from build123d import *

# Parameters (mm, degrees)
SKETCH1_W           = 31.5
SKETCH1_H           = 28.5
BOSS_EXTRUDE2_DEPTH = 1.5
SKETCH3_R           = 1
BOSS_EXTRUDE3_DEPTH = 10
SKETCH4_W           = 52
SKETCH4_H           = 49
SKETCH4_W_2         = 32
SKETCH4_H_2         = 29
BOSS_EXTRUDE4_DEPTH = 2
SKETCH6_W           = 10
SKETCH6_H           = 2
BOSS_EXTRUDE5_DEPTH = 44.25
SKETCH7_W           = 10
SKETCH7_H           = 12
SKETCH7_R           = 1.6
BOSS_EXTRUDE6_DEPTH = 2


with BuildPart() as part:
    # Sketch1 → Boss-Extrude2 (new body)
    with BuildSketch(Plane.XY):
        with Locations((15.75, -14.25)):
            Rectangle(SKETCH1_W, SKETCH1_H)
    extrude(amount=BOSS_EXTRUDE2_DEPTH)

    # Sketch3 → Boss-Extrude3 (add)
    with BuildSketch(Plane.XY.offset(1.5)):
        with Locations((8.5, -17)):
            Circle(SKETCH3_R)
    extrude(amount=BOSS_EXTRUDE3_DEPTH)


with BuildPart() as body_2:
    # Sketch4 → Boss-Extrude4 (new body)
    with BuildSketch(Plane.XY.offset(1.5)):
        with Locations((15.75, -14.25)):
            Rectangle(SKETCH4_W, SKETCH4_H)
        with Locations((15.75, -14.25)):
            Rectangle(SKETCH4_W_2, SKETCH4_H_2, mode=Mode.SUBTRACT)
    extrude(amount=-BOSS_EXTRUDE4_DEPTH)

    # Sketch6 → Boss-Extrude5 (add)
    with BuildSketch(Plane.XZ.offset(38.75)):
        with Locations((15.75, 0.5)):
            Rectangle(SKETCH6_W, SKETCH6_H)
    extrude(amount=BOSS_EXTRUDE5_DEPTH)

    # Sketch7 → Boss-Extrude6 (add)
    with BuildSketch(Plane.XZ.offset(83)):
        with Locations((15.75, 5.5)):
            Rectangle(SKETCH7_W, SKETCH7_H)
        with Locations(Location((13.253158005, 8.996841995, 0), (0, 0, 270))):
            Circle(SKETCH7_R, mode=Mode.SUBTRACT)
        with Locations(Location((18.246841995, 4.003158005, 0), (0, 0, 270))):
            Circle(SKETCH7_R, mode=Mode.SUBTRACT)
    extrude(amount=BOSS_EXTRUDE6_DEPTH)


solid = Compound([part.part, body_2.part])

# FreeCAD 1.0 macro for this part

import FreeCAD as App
import Part
import Sketcher

V = App.Vector
Q = App.Units.Quantity

doc = App.newDocument("Part")
body = doc.addObject("PartDesign::Body", "Body")

sketch1 = body.newObject("Sketcher::SketchObject", "Sketch")
sketch1.AttachmentSupport = (doc.getObject("XY_Plane"), [""])
sketch1.MapMode = "FlatFace"
sketch1.addGeometry(Part.LineSegment(V(0, 0, 0), V(0, -28, 0)), False)
sketch1.addGeometry(Part.LineSegment(V(0, -28, 0), V(32, -28, 0)), False)
sketch1.addGeometry(Part.LineSegment(V(32, -28, 0), V(32, 0, 0)), False)
sketch1.addGeometry(Part.LineSegment(V(32, 0, 0), V(0, 0, 0)), False)
sketch1.addConstraint(Sketcher.Constraint("Coincident", 0, 2, 1, 1))
sketch1.addConstraint(Sketcher.Constraint("Coincident", 1, 2, 2, 1))
sketch1.addConstraint(Sketcher.Constraint("Coincident", 2, 2, 3, 1))
sketch1.addConstraint(Sketcher.Constraint("Coincident", 3, 2, 0, 1))
sketch1.addConstraint(Sketcher.Constraint("Vertical", 0))
sketch1.addConstraint(Sketcher.Constraint("Horizontal", 1))
sketch1.addConstraint(Sketcher.Constraint("Vertical", 2))
sketch1.addConstraint(Sketcher.Constraint("Horizontal", 3))
sketch1.addConstraint(Sketcher.Constraint("Coincident", 3, 2, -1, 1))
sketch1.addConstraint(Sketcher.Constraint("DistanceX", 1, 1, 1, 2, Q("31.5 mm")))
sketch1.addConstraint(Sketcher.Constraint("DistanceY", 0, 2, 0, 1, Q("28.5 mm")))
pad1 = body.newObject("PartDesign::Pad", "Pad")
pad1.Profile = sketch1
pad1.Length = 1.5

sketch2 = body.newObject("Sketcher::SketchObject", "Sketch001")
sketch2.AttachmentSupport = (doc.getObject("XY_Plane"), [""])
sketch2.MapMode = "FlatFace"
sketch2.AttachmentOffset = App.Placement(V(0, 0, 1.5), App.Rotation())
sketch2.addGeometry(Part.Circle(V(8.5, -17, 0), V(0, 0, 1), 1), False)
sketch2.addConstraint(Sketcher.Constraint("Diameter", 0, Q("2 mm")))
sketch2.addConstraint(Sketcher.Constraint("DistanceY", 0, 3, -1, 1, Q("17 mm")))
sketch2.addConstraint(Sketcher.Constraint("DistanceX", -1, 1, 0, 3, Q("8.5 mm")))
pad2 = body.newObject("PartDesign::Pad", "Pad001")
pad2.Profile = sketch2
pad2.Length = 10
body2 = doc.addObject("PartDesign::Body", "Body001")

sketch3 = body2.newObject("Sketcher::SketchObject", "Sketch002")
sketch3.AttachmentSupport = (doc.getObject("XY_Plane001"), [""])
sketch3.MapMode = "FlatFace"
sketch3.AttachmentOffset = App.Placement(V(0, 0, 1.5), App.Rotation())
sketch3.addGeometry(Part.LineSegment(V(-10, 10, 0), V(-10, -39, 0)), False)
sketch3.addGeometry(Part.LineSegment(V(-10, -39, 0), V(42, -39, 0)), False)
sketch3.addGeometry(Part.LineSegment(V(42, -39, 0), V(42, 10, 0)), False)
sketch3.addGeometry(Part.LineSegment(V(42, 10, 0), V(-10, 10, 0)), False)
sketch3.addGeometry(Part.LineSegment(V(32, -29, 0), V(0, -29, 0)), False)
sketch3.addGeometry(Part.LineSegment(V(0, -29, 0), V(0, 0, 0)), False)
sketch3.addGeometry(Part.LineSegment(V(0, 0, 0), V(32, 0, 0)), False)
sketch3.addGeometry(Part.LineSegment(V(32, 0, 0), V(32, -29, 0)), False)
sketch3.addConstraint(Sketcher.Constraint("Coincident", 0, 2, 1, 1))
sketch3.addConstraint(Sketcher.Constraint("Coincident", 1, 2, 2, 1))
sketch3.addConstraint(Sketcher.Constraint("Coincident", 2, 2, 3, 1))
sketch3.addConstraint(Sketcher.Constraint("Coincident", 3, 2, 0, 1))
sketch3.addConstraint(Sketcher.Constraint("Coincident", 4, 2, 5, 1))
sketch3.addConstraint(Sketcher.Constraint("Coincident", 5, 2, 6, 1))
sketch3.addConstraint(Sketcher.Constraint("Coincident", 6, 2, 7, 1))
sketch3.addConstraint(Sketcher.Constraint("Coincident", 7, 2, 4, 1))
sketch3.addConstraint(Sketcher.Constraint("Vertical", 0))
sketch3.addConstraint(Sketcher.Constraint("Horizontal", 1))
sketch3.addConstraint(Sketcher.Constraint("Vertical", 2))
sketch3.addConstraint(Sketcher.Constraint("Horizontal", 3))
sketch3.addConstraint(Sketcher.Constraint("Horizontal", 4))
sketch3.addConstraint(Sketcher.Constraint("Vertical", 5))
sketch3.addConstraint(Sketcher.Constraint("Horizontal", 6))
sketch3.addConstraint(Sketcher.Constraint("Vertical", 7))
sketch3.addConstraint(Sketcher.Constraint("DistanceX", 1, 1, 1, 2, Q("52 mm")))
sketch3.addConstraint(Sketcher.Constraint("DistanceX", 4, 2, 4, 1, Q("32 mm")))
sketch3.addConstraint(Sketcher.Constraint("DistanceY", 0, 2, 0, 1, Q("49 mm")))
sketch3.addConstraint(Sketcher.Constraint("DistanceY", 5, 1, 5, 2, Q("29 mm")))
sketch3.addConstraint(Sketcher.Constraint("DistanceX", 0, 2, 4, 2, Q("10 mm")))
sketch3.addConstraint(Sketcher.Constraint("DistanceY", 0, 2, 4, 2, Q("10 mm")))
sketch3.addConstraint(Sketcher.Constraint("DistanceX", 0, 2, -1, 1, Q("10.25 mm")))
sketch3.addConstraint(Sketcher.Constraint("DistanceY", 0, 2, -1, 1, Q("38.75 mm")))
pad3 = body2.newObject("PartDesign::Pad", "Pad002")
pad3.Profile = sketch3
pad3.Length = 2
pad3.Reversed = True

sketch4 = body2.newObject("Sketcher::SketchObject", "Sketch003")
sketch4.AttachmentSupport = (doc.getObject("XZ_Plane001"), [""])
sketch4.MapMode = "FlatFace"
sketch4.AttachmentOffset = App.Placement(V(0, 0, 38.75), App.Rotation())
sketch4.addGeometry(Part.LineSegment(V(10.8, 1.5, 0), V(10.8, -0.5, 0)), False)
sketch4.addGeometry(Part.LineSegment(V(10.8, -0.5, 0), V(20.8, -0.5, 0)), False)
sketch4.addGeometry(Part.LineSegment(V(20.8, -0.5, 0), V(20.8, 1.5, 0)), False)
sketch4.addGeometry(Part.LineSegment(V(20.8, 1.5, 0), V(10.8, 1.5, 0)), False)
sketch4.addConstraint(Sketcher.Constraint("Coincident", 0, 2, 1, 1))
sketch4.addConstraint(Sketcher.Constraint("Coincident", 1, 2, 2, 1))
sketch4.addConstraint(Sketcher.Constraint("Coincident", 2, 2, 3, 1))
sketch4.addConstraint(Sketcher.Constraint("Coincident", 3, 2, 0, 1))
sketch4.addConstraint(Sketcher.Constraint("Vertical", 0))
sketch4.addConstraint(Sketcher.Constraint("Horizontal", 1))
sketch4.addConstraint(Sketcher.Constraint("Vertical", 2))
sketch4.addConstraint(Sketcher.Constraint("Horizontal", 3))
sketch4.addConstraint(Sketcher.Constraint("DistanceX", 1, 1, 1, 2, Q("10 mm")))
sketch4.addConstraint(Sketcher.Constraint("DistanceY", 0, 2, 0, 1, Q("2 mm")))
sketch4.addConstraint(Sketcher.Constraint("DistanceY", 0, 2, -1, 1, Q("0.5 mm")))
sketch4.addConstraint(Sketcher.Constraint("DistanceX", -1, 1, 0, 2, Q("10.75 mm")))
pad4 = body2.newObject("PartDesign::Pad", "Pad003")
pad4.Profile = sketch4
pad4.Length = 44.25

sketch5 = body2.newObject("Sketcher::SketchObject", "Sketch004")
sketch5.AttachmentSupport = (doc.getObject("XZ_Plane001"), [""])
sketch5.MapMode = "FlatFace"
sketch5.AttachmentOffset = App.Placement(V(0, 0, 83), App.Rotation())
sketch5.addGeometry(Part.LineSegment(V(10.8, 11.5, 0), V(10.8, -0.5, 0)), False)
sketch5.addGeometry(Part.LineSegment(V(10.8, -0.5, 0), V(20.8, -0.5, 0)), False)
sketch5.addGeometry(Part.LineSegment(V(20.8, -0.5, 0), V(20.8, 11.5, 0)), False)
sketch5.addGeometry(Part.LineSegment(V(20.8, 11.5, 0), V(10.8, 11.5, 0)), False)
sketch5.addGeometry(Part.Circle(V(18.2, 4, 0), V(0, 0, 1), 1.6), False)
sketch5.addGeometry(Part.Circle(V(13.3, 9, 0), V(0, 0, 1), 1.6), False)
sketch5.addConstraint(Sketcher.Constraint("Coincident", 0, 2, 1, 1))
sketch5.addConstraint(Sketcher.Constraint("Coincident", 1, 2, 2, 1))
sketch5.addConstraint(Sketcher.Constraint("Coincident", 2, 2, 3, 1))
sketch5.addConstraint(Sketcher.Constraint("Coincident", 3, 2, 0, 1))
sketch5.addConstraint(Sketcher.Constraint("Vertical", 0))
sketch5.addConstraint(Sketcher.Constraint("Horizontal", 1))
sketch5.addConstraint(Sketcher.Constraint("Vertical", 2))
sketch5.addConstraint(Sketcher.Constraint("Horizontal", 3))
sketch5.addConstraint(Sketcher.Constraint("Equal", 4, 5))
sketch5.addConstraint(Sketcher.Constraint("Diameter", 4, Q("3.2 mm")))
sketch5.addConstraint(Sketcher.Constraint("DistanceX", 1, 1, 1, 2, Q("10 mm")))
sketch5.addConstraint(Sketcher.Constraint("DistanceY", 0, 2, 0, 1, Q("12 mm")))
sketch5.addConstraint(Sketcher.Constraint("DistanceY", 0, 2, -1, 1, Q("0.5 mm")))
sketch5.addConstraint(Sketcher.Constraint("DistanceX", -1, 1, 0, 2, Q("10.75 mm")))
sketch5.addConstraint(Sketcher.Constraint("DistanceX", -1, 1, 4, 3, Q("18.246842 mm")))
sketch5.addConstraint(Sketcher.Constraint("DistanceY", -1, 1, 4, 3, Q("4.003158 mm")))
sketch5.addConstraint(Sketcher.Constraint("DistanceX", -1, 1, 5, 3, Q("13.253158 mm")))
sketch5.addConstraint(Sketcher.Constraint("DistanceY", -1, 1, 5, 3, Q("8.996842 mm")))
pad5 = body2.newObject("PartDesign::Pad", "Pad004")
pad5.Profile = sketch5
pad5.Length = 2

doc.recompute()
